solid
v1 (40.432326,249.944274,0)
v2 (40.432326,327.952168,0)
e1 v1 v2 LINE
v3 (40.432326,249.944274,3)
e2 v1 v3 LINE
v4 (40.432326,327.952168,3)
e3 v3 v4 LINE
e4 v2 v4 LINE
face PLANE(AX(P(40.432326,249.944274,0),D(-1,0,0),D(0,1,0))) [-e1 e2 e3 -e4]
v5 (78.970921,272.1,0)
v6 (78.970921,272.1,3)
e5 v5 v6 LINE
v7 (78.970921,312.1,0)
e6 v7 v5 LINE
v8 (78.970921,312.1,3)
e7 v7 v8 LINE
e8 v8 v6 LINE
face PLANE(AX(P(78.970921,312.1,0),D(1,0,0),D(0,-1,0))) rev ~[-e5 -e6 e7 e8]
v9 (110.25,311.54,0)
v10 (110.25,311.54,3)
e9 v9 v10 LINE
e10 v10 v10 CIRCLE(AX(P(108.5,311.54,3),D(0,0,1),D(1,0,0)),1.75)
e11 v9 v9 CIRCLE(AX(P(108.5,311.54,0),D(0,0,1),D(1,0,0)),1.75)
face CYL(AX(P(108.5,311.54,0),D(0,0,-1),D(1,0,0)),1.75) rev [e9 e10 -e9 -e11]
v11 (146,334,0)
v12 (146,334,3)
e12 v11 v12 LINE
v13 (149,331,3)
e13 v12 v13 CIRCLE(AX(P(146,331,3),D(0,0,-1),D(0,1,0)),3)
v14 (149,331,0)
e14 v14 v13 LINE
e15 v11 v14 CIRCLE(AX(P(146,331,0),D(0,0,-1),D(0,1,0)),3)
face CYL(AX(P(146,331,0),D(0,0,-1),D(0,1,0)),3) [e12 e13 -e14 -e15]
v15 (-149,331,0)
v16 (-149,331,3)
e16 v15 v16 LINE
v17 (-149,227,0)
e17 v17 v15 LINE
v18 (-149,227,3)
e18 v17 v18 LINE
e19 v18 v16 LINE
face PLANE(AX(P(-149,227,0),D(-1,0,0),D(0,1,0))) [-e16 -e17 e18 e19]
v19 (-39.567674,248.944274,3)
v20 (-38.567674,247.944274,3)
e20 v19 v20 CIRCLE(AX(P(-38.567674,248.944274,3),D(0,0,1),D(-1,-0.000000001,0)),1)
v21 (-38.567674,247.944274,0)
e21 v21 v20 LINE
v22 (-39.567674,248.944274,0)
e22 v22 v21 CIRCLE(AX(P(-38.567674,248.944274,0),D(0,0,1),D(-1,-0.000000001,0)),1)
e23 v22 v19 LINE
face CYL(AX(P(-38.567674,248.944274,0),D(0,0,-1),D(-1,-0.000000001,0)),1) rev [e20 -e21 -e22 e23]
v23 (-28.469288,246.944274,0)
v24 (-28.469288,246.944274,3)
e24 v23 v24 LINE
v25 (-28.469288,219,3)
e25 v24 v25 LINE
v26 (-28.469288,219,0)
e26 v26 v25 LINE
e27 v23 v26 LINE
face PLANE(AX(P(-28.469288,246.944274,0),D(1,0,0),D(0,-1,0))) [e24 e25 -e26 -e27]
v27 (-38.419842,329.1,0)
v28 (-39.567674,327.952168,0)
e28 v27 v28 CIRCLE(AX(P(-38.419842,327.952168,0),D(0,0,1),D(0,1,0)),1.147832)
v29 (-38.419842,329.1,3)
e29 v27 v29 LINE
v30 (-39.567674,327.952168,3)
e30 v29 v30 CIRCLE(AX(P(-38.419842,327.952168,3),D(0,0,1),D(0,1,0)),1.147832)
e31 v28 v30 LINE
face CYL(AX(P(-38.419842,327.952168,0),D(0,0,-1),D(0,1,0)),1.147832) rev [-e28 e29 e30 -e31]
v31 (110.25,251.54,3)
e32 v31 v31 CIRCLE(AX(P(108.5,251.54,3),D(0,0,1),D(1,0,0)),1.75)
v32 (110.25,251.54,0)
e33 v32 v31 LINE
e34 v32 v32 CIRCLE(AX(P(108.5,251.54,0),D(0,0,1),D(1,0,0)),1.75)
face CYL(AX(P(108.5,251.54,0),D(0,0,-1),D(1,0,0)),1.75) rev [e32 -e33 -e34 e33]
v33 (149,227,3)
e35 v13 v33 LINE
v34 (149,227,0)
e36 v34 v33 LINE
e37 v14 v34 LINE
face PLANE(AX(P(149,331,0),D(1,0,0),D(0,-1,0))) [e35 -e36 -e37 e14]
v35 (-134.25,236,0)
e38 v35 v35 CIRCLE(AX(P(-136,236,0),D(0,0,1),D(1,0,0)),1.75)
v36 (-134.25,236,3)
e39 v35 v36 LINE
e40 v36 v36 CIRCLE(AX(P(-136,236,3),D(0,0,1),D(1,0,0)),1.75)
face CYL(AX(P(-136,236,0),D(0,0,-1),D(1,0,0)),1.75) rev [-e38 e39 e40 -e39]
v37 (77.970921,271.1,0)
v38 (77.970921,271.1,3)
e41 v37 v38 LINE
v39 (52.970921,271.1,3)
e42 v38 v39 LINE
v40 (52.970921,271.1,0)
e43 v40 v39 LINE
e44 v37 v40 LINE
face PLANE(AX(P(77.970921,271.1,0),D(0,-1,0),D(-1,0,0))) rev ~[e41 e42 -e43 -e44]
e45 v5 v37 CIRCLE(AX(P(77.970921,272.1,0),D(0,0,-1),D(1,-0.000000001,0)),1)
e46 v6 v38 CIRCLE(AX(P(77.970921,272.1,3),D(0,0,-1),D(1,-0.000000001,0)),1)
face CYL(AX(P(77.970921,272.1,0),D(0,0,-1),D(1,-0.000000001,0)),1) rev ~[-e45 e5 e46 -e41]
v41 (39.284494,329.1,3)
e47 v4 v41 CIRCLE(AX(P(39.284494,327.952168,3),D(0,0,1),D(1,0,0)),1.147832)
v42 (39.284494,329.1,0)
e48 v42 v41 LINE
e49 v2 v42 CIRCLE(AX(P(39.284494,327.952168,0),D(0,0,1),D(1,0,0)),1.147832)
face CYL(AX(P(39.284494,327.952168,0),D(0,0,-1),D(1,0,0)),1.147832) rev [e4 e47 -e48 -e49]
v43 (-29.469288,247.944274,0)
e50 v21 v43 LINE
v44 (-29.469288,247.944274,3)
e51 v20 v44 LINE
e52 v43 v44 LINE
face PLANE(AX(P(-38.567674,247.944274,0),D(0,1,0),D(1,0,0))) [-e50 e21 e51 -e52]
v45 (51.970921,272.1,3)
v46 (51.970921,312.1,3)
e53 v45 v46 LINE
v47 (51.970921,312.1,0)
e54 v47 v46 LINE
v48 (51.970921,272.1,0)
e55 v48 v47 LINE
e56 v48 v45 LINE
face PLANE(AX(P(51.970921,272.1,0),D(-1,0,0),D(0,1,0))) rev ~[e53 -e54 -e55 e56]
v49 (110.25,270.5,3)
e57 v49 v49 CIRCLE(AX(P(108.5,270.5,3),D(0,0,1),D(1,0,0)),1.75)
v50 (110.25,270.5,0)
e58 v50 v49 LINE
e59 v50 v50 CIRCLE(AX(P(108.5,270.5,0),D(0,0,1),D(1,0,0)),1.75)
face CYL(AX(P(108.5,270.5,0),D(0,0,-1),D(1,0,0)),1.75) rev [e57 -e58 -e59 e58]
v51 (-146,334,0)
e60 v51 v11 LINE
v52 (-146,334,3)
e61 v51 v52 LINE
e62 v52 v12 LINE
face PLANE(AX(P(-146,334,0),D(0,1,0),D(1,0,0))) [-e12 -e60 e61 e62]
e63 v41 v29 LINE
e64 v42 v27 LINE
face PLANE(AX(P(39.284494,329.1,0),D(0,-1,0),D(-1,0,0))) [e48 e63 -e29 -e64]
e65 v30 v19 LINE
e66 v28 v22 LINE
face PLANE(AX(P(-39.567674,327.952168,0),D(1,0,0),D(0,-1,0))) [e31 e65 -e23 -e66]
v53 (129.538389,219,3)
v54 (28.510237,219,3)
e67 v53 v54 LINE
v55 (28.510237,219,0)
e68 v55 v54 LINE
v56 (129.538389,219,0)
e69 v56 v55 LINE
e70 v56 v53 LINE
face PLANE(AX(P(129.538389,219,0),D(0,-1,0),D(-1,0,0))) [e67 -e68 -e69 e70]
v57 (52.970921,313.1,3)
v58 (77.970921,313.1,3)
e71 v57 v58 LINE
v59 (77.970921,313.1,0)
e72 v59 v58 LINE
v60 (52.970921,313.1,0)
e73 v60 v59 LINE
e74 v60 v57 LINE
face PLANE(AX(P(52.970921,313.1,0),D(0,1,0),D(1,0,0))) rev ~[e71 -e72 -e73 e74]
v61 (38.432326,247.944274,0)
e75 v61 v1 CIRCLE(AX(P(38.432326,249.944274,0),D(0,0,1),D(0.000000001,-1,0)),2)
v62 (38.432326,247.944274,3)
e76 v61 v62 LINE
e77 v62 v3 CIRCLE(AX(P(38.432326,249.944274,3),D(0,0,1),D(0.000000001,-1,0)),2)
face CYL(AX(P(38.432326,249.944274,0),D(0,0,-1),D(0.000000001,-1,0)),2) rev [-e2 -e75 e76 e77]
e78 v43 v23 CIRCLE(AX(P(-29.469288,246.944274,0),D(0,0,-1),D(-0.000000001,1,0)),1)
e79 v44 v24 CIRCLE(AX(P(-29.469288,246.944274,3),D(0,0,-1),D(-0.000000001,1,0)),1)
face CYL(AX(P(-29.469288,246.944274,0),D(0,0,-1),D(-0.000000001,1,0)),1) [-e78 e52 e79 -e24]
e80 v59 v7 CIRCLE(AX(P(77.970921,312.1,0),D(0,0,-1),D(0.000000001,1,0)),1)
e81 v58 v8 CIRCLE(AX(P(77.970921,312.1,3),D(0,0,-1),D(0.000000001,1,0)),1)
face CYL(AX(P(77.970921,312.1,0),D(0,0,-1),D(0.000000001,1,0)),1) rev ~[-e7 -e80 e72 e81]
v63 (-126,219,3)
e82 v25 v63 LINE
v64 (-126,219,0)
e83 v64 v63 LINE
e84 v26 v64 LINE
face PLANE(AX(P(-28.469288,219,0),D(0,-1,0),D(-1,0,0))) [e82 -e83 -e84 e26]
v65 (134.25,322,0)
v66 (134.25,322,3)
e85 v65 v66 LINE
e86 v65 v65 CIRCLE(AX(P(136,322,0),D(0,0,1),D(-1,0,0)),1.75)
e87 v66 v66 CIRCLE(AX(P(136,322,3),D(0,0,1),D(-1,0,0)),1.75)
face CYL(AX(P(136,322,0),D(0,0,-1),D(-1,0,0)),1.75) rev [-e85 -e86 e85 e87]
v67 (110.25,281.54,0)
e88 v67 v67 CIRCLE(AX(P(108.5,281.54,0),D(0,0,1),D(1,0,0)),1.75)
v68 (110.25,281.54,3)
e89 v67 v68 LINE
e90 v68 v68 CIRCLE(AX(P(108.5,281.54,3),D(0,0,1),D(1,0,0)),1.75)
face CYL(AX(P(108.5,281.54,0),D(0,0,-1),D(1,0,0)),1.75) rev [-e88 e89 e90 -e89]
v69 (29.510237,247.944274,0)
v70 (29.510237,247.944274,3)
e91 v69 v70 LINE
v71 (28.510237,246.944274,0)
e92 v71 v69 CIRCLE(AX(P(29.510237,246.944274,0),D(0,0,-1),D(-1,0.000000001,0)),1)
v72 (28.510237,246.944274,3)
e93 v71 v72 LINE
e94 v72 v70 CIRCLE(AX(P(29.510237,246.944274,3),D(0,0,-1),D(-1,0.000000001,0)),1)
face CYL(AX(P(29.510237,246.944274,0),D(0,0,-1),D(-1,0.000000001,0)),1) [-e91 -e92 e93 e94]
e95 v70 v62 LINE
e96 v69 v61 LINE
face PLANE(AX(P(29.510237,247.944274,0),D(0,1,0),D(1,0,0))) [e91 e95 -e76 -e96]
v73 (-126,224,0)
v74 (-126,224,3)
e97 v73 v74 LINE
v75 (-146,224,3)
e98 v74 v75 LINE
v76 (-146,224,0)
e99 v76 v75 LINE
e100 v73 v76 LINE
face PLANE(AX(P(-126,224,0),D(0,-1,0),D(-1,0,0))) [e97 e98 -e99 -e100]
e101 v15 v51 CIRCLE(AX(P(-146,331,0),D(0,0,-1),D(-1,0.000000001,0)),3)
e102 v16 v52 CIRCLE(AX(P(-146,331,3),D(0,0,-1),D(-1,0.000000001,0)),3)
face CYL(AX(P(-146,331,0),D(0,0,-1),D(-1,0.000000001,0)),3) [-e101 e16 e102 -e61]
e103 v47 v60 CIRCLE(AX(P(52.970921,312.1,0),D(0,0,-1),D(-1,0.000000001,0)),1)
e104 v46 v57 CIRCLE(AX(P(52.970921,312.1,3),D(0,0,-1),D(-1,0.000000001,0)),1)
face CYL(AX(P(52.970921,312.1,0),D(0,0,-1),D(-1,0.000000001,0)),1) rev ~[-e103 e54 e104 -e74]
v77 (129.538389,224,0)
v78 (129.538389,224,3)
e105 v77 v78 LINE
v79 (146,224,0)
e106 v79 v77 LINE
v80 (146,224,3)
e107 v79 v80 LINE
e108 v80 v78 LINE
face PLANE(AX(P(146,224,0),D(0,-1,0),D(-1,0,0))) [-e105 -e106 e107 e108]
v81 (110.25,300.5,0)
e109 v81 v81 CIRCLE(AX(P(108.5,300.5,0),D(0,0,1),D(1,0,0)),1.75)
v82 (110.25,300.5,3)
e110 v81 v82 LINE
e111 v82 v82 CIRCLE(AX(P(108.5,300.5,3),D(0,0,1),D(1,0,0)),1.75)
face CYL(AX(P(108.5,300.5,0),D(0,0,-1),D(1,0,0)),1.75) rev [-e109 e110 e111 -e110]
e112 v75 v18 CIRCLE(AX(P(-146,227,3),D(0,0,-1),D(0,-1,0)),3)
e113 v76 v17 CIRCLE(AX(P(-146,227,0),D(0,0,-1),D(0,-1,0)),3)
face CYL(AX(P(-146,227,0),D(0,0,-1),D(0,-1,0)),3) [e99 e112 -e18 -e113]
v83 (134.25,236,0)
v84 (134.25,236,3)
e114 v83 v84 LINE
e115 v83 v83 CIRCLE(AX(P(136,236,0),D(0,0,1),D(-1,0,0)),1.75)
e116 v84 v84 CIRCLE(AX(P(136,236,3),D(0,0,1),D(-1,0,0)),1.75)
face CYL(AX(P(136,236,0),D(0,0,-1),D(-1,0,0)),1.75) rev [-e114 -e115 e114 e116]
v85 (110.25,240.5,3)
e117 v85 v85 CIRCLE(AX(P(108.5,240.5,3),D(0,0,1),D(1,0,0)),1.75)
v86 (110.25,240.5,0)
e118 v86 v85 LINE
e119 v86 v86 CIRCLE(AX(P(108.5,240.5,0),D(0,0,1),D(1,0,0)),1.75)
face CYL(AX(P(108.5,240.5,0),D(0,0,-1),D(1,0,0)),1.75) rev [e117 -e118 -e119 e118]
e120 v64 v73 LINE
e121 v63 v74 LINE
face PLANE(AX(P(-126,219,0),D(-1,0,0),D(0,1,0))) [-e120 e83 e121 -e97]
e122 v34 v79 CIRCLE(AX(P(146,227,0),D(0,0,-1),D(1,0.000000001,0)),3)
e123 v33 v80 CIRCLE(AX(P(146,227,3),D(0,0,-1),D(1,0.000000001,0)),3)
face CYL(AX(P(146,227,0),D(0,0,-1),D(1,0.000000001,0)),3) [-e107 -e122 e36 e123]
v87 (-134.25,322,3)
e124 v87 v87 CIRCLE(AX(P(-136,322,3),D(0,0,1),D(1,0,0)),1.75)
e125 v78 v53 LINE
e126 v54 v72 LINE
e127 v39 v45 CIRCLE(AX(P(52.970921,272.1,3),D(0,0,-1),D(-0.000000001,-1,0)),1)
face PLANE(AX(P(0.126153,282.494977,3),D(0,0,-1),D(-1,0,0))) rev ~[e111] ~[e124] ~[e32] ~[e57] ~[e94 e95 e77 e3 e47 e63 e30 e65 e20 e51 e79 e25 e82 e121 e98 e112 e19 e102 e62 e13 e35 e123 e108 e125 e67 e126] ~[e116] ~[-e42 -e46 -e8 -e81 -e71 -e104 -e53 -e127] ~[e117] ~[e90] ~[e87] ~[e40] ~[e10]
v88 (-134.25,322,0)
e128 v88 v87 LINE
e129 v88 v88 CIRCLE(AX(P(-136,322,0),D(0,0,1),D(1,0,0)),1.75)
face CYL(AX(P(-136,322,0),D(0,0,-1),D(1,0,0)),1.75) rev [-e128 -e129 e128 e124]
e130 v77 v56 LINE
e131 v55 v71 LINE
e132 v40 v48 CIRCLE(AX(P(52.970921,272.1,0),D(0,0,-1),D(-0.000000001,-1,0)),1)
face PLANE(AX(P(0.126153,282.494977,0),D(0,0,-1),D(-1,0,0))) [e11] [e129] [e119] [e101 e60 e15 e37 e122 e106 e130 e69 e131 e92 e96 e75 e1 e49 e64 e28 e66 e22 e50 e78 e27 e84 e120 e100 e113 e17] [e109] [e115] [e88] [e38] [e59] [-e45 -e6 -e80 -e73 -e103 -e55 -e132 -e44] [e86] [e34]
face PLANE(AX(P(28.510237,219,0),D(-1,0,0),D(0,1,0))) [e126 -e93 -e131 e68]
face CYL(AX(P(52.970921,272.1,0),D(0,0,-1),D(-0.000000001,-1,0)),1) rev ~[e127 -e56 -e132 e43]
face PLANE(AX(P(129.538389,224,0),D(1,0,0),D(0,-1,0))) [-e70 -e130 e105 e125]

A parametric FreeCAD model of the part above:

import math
import FreeCAD as App
import Part
import Sketcher

V = App.Vector
Q = App.Units.Quantity

doc = App.newDocument("Part")
body = doc.addObject("PartDesign::Body", "Body")

sketch1 = body.newObject("Sketcher::SketchObject", "Sketch")
sketch1.AttachmentSupport = (doc.getObject("XY_Plane"), [""])
sketch1.MapMode = "FlatFace"
sketch1.addGeometry([
    Part.LineSegment(V(146, 334, 0), V(-146, 334, 0)),
    Part.ArcOfCircle(Part.Circle(V(-146, 331, 0), V(0, 0, 1), 3), math.radians(90), math.radians(180)),
    Part.LineSegment(V(-149, 331, 0), V(-149, 227, 0)),
    Part.ArcOfCircle(Part.Circle(V(-146, 227, 0), V(0, 0, 1), 3), math.radians(180), math.radians(270)),
    Part.LineSegment(V(-146, 224, 0), V(-126, 224, 0)),
    Part.LineSegment(V(-126, 224, 0), V(-126, 219, 0)),
    Part.LineSegment(V(-126, 219, 0), V(-28.469288, 219, 0)),
    Part.LineSegment(V(-28.469288, 219, 0), V(-28.469288, 246.944274, 0)),
    Part.ArcOfCircle(Part.Circle(V(-29.469288, 246.944274, 0), V(0, 0, 1), 1), math.radians(0), math.radians(90)),
    Part.LineSegment(V(-29.469288, 247.944274, 0), V(-38.567674, 247.944274, 0)),
    Part.ArcOfCircle(Part.Circle(V(-38.567674, 248.944274, 0), V(0, 0, 1), 1), math.radians(-180), math.radians(-90)),
    Part.LineSegment(V(-39.567674, 248.944274, 0), V(-39.567674, 327.952168, 0)),
    Part.ArcOfCircle(Part.Circle(V(-38.419842, 327.952168, 0), V(0, 0, 1), 1.147832), math.radians(90), math.radians(180)),
    Part.LineSegment(V(-38.419842, 329.1, 0), V(39.284494, 329.1, 0)),
    Part.ArcOfCircle(Part.Circle(V(39.284494, 327.952168, 0), V(0, 0, 1), 1.147832), math.radians(0), math.radians(90)),
    Part.LineSegment(V(40.432326, 327.952168, 0), V(40.432326, 249.944274, 0)),
    Part.ArcOfCircle(Part.Circle(V(38.432326, 249.944274, 0), V(0, 0, 1), 2), math.radians(-90), math.radians(0)),
    Part.LineSegment(V(38.432326, 247.944274, 0), V(29.510237, 247.944274, 0)),
    Part.ArcOfCircle(Part.Circle(V(29.510237, 246.944274, 0), V(0, 0, 1), 1), math.radians(90), math.radians(180)),
    Part.LineSegment(V(28.510237, 246.944274, 0), V(28.510237, 219, 0)),
    Part.LineSegment(V(28.510237, 219, 0), V(129.538389, 219, 0)),
    Part.LineSegment(V(129.538389, 219, 0), V(129.538389, 224, 0)),
    Part.LineSegment(V(129.538389, 224, 0), V(146, 224, 0)),
    Part.ArcOfCircle(Part.Circle(V(146, 227, 0), V(0, 0, 1), 3), math.radians(-90), math.radians(0)),
    Part.LineSegment(V(149, 227, 0), V(149, 331, 0)),
    Part.ArcOfCircle(Part.Circle(V(146, 331, 0), V(0, 0, 1), 3), math.radians(0), math.radians(90)),
    Part.Circle(V(136, 236, 0), V(0, 0, 1), 1.75),
    Part.Circle(V(108.5, 240.5, 0), V(0, 0, 1), 1.75),
    Part.Circle(V(108.5, 251.54, 0), V(0, 0, 1), 1.75),
    Part.Circle(V(108.5, 270.5, 0), V(0, 0, 1), 1.75),
    Part.Circle(V(-136, 236, 0), V(0, 0, 1), 1.75),
    Part.Circle(V(108.5, 281.54, 0), V(0, 0, 1), 1.75),
    Part.Circle(V(108.5, 300.5, 0), V(0, 0, 1), 1.75),
    Part.LineSegment(V(52.970921, 313.1, 0), V(77.970921, 313.1, 0)),
    Part.ArcOfCircle(Part.Circle(V(77.970921, 312.1, 0), V(0, 0, 1), 1), math.radians(0), math.radians(90)),
    Part.LineSegment(V(78.970921, 312.1, 0), V(78.970921, 272.1, 0)),
    Part.ArcOfCircle(Part.Circle(V(77.970921, 272.1, 0), V(0, 0, 1), 1), math.radians(-90), math.radians(0)),
    Part.LineSegment(V(77.970921, 271.1, 0), V(52.970921, 271.1, 0)),
    Part.ArcOfCircle(Part.Circle(V(52.970921, 272.1, 0), V(0, 0, 1), 1), math.radians(-180), math.radians(-90)),
    Part.LineSegment(V(51.970921, 272.1, 0), V(51.970921, 312.1, 0)),
    Part.ArcOfCircle(Part.Circle(V(52.970921, 312.1, 0), V(0, 0, 1), 1), math.radians(90), math.radians(180)),
    Part.Circle(V(108.5, 311.54, 0), V(0, 0, 1), 1.75),
    Part.Circle(V(136, 322, 0), V(0, 0, 1), 1.75),
    Part.Circle(V(-136, 322, 0), V(0, 0, 1), 1.75),
], False)
sketch1.addConstraint([
    Sketcher.Constraint("Tangent", 0, 2, 1, 1),
    Sketcher.Constraint("Tangent", 1, 2, 2, 1),
    Sketcher.Constraint("Tangent", 2, 2, 3, 1),
    Sketcher.Constraint("Tangent", 3, 2, 4, 1),
    Sketcher.Constraint("Coincident", 4, 2, 5, 1),
    Sketcher.Constraint("Coincident", 5, 2, 6, 1),
    Sketcher.Constraint("Coincident", 6, 2, 7, 1),
    Sketcher.Constraint("Tangent", 7, 2, 8, 1),
    Sketcher.Constraint("Tangent", 8, 2, 9, 1),
    Sketcher.Constraint("Tangent", 9, 2, 10, 2),
    Sketcher.Constraint("Tangent", 10, 1, 11, 1),
    Sketcher.Constraint("Tangent", 11, 2, 12, 2),
    Sketcher.Constraint("Tangent", 12, 1, 13, 1),
    Sketcher.Constraint("Tangent", 13, 2, 14, 2),
    Sketcher.Constraint("Tangent", 14, 1, 15, 1),
    Sketcher.Constraint("Tangent", 15, 2, 16, 2),
    Sketcher.Constraint("Tangent", 16, 1, 17, 1),
    Sketcher.Constraint("Tangent", 17, 2, 18, 1),
    Sketcher.Constraint("Tangent", 18, 2, 19, 1),
    Sketcher.Constraint("Coincident", 19, 2, 20, 1),
    Sketcher.Constraint("Coincident", 20, 2, 21, 1),
    Sketcher.Constraint("Coincident", 21, 2, 22, 1),
    Sketcher.Constraint("Tangent", 22, 2, 23, 1),
    Sketcher.Constraint("Tangent", 23, 2, 24, 1),
    Sketcher.Constraint("Tangent", 24, 2, 25, 1),
    Sketcher.Constraint("Tangent", 25, 2, 0, 1),
    Sketcher.Constraint("Tangent", 33, 2, 34, 2),
    Sketcher.Constraint("Tangent", 34, 1, 35, 1),
    Sketcher.Constraint("Tangent", 35, 2, 36, 2),
    Sketcher.Constraint("Tangent", 36, 1, 37, 1),
    Sketcher.Constraint("Tangent", 37, 2, 38, 2),
    Sketcher.Constraint("Tangent", 38, 1, 39, 1),
    Sketcher.Constraint("Tangent", 39, 2, 40, 2),
    Sketcher.Constraint("Tangent", 40, 1, 33, 1),
    Sketcher.Constraint("Horizontal", 0),
    Sketcher.Constraint("Vertical", 2),
    Sketcher.Constraint("Horizontal", 4),
    Sketcher.Constraint("Vertical", 5),
    Sketcher.Constraint("Horizontal", 6),
    Sketcher.Constraint("Vertical", 7),
    Sketcher.Constraint("Horizontal", 9),
    Sketcher.Constraint("Vertical", 11),
    Sketcher.Constraint("Horizontal", 13),
    Sketcher.Constraint("Vertical", 15),
    Sketcher.Constraint("Horizontal", 17),
    Sketcher.Constraint("Vertical", 19),
    Sketcher.Constraint("Horizontal", 20),
    Sketcher.Constraint("Vertical", 21),
    Sketcher.Constraint("Horizontal", 22),
    Sketcher.Constraint("Vertical", 24),
    Sketcher.Constraint("Horizontal", 33),
    Sketcher.Constraint("Vertical", 35),
    Sketcher.Constraint("Horizontal", 37),
    Sketcher.Constraint("Vertical", 39),
    Sketcher.Constraint("Equal", 1, 3),
    Sketcher.Constraint("Equal", 8, 10),
    Sketcher.Constraint("Equal", 12, 14),
    Sketcher.Constraint("Equal", 10, 18),
    Sketcher.Constraint("Equal", 3, 23),
    Sketcher.Constraint("Equal", 23, 25),
    Sketcher.Constraint("Equal", 26, 27),
    Sketcher.Constraint("Equal", 27, 28),
    Sketcher.Constraint("Equal", 28, 29),
    Sketcher.Constraint("Equal", 29, 30),
    Sketcher.Constraint("Equal", 30, 31),
    Sketcher.Constraint("Equal", 31, 32),
    Sketcher.Constraint("Equal", 18, 34),
    Sketcher.Constraint("Equal", 34, 36),
    Sketcher.Constraint("Equal", 36, 38),
    Sketcher.Constraint("Equal", 38, 40),
    Sketcher.Constraint("Equal", 32, 41),
    Sketcher.Constraint("Equal", 41, 42),
    Sketcher.Constraint("Equal", 42, 43),
    Sketcher.Constraint("Symmetric", 3, 3, 23, 3, -2),
    Sketcher.Constraint("Symmetric", 26, 3, 30, 3, -2),
    Sketcher.Constraint("Symmetric", 42, 3, 43, 3, -2),
    Sketcher.Constraint("Horizontal", 8, 3, 18, 3),
    Sketcher.Constraint("Horizontal", 6, 2, 19, 2),
    Sketcher.Constraint("Vertical", 27, 3, 28, 3),
    Sketcher.Constraint("Vertical", 28, 3, 29, 3),
    Sketcher.Constraint("Vertical", 29, 3, 31, 3),
    Sketcher.Constraint("Vertical", 31, 3, 32, 3),
    Sketcher.Constraint("Vertical", 32, 3, 41, 3),
    Sketcher.Constraint("Vertical", 26, 3, 42, 3),
    Sketcher.Constraint("Radius", 1, Q("3 mm")),
    Sketcher.Constraint("Radius", 8, Q("1 mm")),
    Sketcher.Constraint("Radius", 16, Q("2 mm")),
    Sketcher.Constraint("Diameter", 26, Q("3.5 mm")),
    Sketcher.Constraint("DistanceX", 0, 2, 0, 1, Q("292 mm")),
    Sketcher.Constraint("DistanceX", 4, 1, 4, 2, Q("20 mm")),
    Sketcher.Constraint("DistanceX", 33, 1, 33, 2, Q("25 mm")),
    Sketcher.Constraint("DistanceY", 2, 2, 2, 1, Q("104 mm")),
    Sketcher.Constraint("DistanceY", 5, 2, 5, 1, Q("5 mm")),
    Sketcher.Constraint("DistanceY", 35, 2, 35, 1, Q("40 mm")),
    Sketcher.Constraint("DistanceY", -1, 1, 1, 3, Q("331 mm")),
    Sketcher.Constraint("DistanceX", -1, 1, 26, 3, Q("136 mm")),
    Sketcher.Constraint("DistanceY", -1, 1, 26, 3, Q("236 mm")),
    Sketcher.Constraint("DistanceY", -1, 1, 42, 3, Q("322 mm")),
    Sketcher.Constraint("DistanceX", 10, 3, 16, 3, Q("77 mm")),
    Sketcher.Constraint("DistanceY", 27, 3, 29, 3, Q("30 mm")),
    Sketcher.Constraint("DistanceY", 28, 3, 31, 3, Q("30 mm")),
    Sketcher.Constraint("DistanceY", 29, 3, 32, 3, Q("30 mm")),
    Sketcher.Constraint("DistanceY", 31, 3, 41, 3, Q("30 mm")),
    Sketcher.Constraint("DistanceY", 40, 3, 13, 2, Q("17 mm")),
    Sketcher.Constraint("DistanceX", -1, 1, 27, 3, Q("108.5 mm")),
    Sketcher.Constraint("DistanceY", -1, 1, 27, 3, Q("240.5 mm")),
    Sketcher.Constraint("DistanceY", -1, 1, 34, 3, Q("312.1 mm")),
    Sketcher.Constraint("DistanceY", -1, 1, 28, 3, Q("251.54 mm")),
    Sketcher.Constraint("Radius", 12, Q("1.147832 mm")),
    Sketcher.Constraint("DistanceX", 6, 1, 6, 2, Q("97.530712 mm")),
    Sketcher.Constraint("DistanceX", 17, 2, 17, 1, Q("8.922089 mm")),
    Sketcher.Constraint("DistanceX", 20, 1, 20, 2, Q("101.028152 mm")),
    Sketcher.Constraint("DistanceX", 22, 1, 22, 2, Q("16.461611 mm")),
    Sketcher.Constraint("DistanceY", 7, 1, 7, 2, Q("27.944274 mm")),
    Sketcher.Constraint("DistanceX", -1, 1, 34, 3, Q("77.970921 mm")),
])
pad1 = body.newObject("PartDesign::Pad", "Pad")
pad1.Profile = sketch1
pad1.Length = 3

doc.recompute()
